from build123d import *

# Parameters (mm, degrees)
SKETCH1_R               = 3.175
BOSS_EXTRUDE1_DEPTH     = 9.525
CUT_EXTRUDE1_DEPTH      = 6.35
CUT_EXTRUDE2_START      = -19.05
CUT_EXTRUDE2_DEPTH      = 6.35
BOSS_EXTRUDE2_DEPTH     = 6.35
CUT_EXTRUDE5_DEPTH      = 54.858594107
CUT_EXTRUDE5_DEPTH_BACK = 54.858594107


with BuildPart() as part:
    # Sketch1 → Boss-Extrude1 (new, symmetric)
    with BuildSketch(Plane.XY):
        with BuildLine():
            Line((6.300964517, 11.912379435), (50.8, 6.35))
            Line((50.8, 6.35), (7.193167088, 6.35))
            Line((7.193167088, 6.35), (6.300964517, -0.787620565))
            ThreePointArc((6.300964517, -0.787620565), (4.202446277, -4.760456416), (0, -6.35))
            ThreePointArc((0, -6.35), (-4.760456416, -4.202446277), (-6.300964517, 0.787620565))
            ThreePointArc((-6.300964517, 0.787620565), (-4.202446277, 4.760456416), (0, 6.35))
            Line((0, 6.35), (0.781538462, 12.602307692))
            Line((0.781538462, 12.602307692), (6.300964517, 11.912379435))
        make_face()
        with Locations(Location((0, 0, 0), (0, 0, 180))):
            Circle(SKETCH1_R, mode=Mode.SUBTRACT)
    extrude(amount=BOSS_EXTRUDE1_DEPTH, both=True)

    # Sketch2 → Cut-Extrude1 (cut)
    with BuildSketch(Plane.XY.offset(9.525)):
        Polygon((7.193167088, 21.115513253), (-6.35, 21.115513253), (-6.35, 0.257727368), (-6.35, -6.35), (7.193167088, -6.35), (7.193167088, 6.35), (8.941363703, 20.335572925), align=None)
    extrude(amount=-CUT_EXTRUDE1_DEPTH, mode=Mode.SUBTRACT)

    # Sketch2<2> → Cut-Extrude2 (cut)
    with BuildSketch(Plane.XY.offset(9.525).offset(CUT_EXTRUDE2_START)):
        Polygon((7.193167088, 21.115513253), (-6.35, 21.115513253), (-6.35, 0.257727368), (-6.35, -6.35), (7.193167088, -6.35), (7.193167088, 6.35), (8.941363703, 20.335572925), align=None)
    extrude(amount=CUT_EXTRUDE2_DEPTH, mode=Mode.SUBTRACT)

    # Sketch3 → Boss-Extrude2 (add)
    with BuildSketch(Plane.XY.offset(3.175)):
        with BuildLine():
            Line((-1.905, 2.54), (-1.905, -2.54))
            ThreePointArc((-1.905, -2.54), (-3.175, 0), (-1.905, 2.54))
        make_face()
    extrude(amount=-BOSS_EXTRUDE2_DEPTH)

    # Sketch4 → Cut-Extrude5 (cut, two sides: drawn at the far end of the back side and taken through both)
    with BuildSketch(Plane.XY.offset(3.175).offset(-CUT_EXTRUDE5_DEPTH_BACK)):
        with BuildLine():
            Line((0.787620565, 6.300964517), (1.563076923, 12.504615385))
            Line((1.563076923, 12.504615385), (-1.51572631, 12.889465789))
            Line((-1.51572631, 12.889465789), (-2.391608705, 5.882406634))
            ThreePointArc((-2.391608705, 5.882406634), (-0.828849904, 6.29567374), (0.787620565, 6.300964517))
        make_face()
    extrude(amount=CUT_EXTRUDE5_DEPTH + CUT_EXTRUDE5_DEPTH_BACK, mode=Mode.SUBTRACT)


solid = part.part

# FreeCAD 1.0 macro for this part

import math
import FreeCAD as App
import Part
import Sketcher
Q = App.Units.Quantity


def add_polygon(sketch, points):
    """Adds a closed chain of lines whose ends are joined by coincident constraints."""
    first, n = sketch.GeometryCount, len(points)
    for a, b in zip(points, points[1:] + points[:1]):
        sketch.addGeometry(Part.LineSegment(App.Vector(*a, 0), App.Vector(*b, 0)), False)
    for i in range(n):
        sketch.addConstraint(Sketcher.Constraint("Coincident", first + i, 2, first + (i + 1) % n, 1))

doc = App.newDocument("Part")
params = doc.addObject("Spreadsheet::Sheet", "Params")
for row, (alias, value) in enumerate([
    ("sketch1_diameter", "0.25 in"),
    ("sketch1_radius", "0.25 in"),
    ("pad1_length", "0.75 in"),
    ("sketch2_height", "0.5 in"),
    ("pocket1_length", "0.25 in"),
    ("sketch3_height", "0.5 in"),
    ("pocket2_length", "0.25 in"),
    ("sketch4_height", "0.2 in"),
    ("sketch4_radius", "0.125 in"),
    ("pad2_length", "0.25 in"),
    ("sketch5_radius", "0.25 in"),
], start=1):
    params.set(f"A{row}", alias)
    params.set(f"B{row}", "=" + value)
    params.setAlias(f"B{row}", alias)

body = doc.addObject("PartDesign::Body", "Body")

# Sketch on XY plane
sketch1 = body.newObject("Sketcher::SketchObject", "Sketch")
sketch1.AttachmentSupport = (doc.getObject("XY_Plane"), [""])
sketch1.MapMode = "FlatFace"
sketch1.addGeometry(Part.LineSegment(App.Vector(50.8, 6.35, 0), App.Vector(6.300965, 11.912379, 0)), False)
sketch1.addGeometry(Part.LineSegment(App.Vector(6.300965, 11.912379, 0), App.Vector(0.781538, 12.602308, 0)), False)
sketch1.addGeometry(Part.LineSegment(App.Vector(0.781538, 12.602308, 0), App.Vector(0, 6.35, 0)), False)
sketch1.addGeometry(Part.ArcOfCircle(Part.Circle(App.Vector(0, 0, 0), App.Vector(0, 0, 1), 6.35), math.radians(90), math.radians(172.874984)), False)
sketch1.addGeometry(Part.ArcOfCircle(Part.Circle(App.Vector(0, 0, 0), App.Vector(0, 0, 1), 6.35), math.radians(172.874984), math.radians(270)), False)
sketch1.addGeometry(Part.ArcOfCircle(Part.Circle(App.Vector(0, 0, 0), App.Vector(0, 0, 1), 6.35), math.radians(-90), math.radians(-7.125016)), False)
sketch1.addGeometry(Part.LineSegment(App.Vector(6.300965, -0.787621, 0), App.Vector(7.193167, 6.35, 0)), False)
sketch1.addGeometry(Part.LineSegment(App.Vector(7.193167, 6.35, 0), App.Vector(50.8, 6.35, 0)), False)
sketch1.addGeometry(Part.Circle(App.Vector(0, 0, 0), App.Vector(0, 0, 1), 3.175), False)
sketch1.addConstraint(Sketcher.Constraint("Coincident", 0, 2, 1, 1))
sketch1.addConstraint(Sketcher.Constraint("Coincident", 1, 2, 2, 1))
sketch1.addConstraint(Sketcher.Constraint("Coincident", 2, 2, 3, 1))
sketch1.addConstraint(Sketcher.Constraint("Tangent", 3, 2, 4, 1))
sketch1.addConstraint(Sketcher.Constraint("Tangent", 4, 2, 5, 1))
sketch1.addConstraint(Sketcher.Constraint("Tangent", 5, 2, 6, 1))
sketch1.addConstraint(Sketcher.Constraint("Coincident", 6, 2, 7, 1))
sketch1.addConstraint(Sketcher.Constraint("Coincident", 7, 2, 0, 1))
sketch1.addConstraint(Sketcher.Constraint("Horizontal", 7))
sketch1.addConstraint(Sketcher.Constraint("Coincident", 3, 3, -1, 1))
sketch1.addConstraint(Sketcher.Constraint("Coincident", 5, 3, -1, 1))
sketch1.addConstraint(Sketcher.Constraint("Coincident", 8, 3, -1, 1))
sketch1.addConstraint(Sketcher.Constraint("PointOnObject", 2, 2, -2))
sketch1.addConstraint(Sketcher.Constraint("PointOnObject", 4, 2, -2))
sketch1.addConstraint(Sketcher.Constraint("Parallel", 0, 1))
sketch1.addConstraint(Sketcher.Constraint("Perpendicular", 1, 2))
sketch1.addConstraint(Sketcher.Constraint("Parallel", 2, 6))
sketch1.addConstraint(Sketcher.Constraint("Horizontal", 2, 2, 6, 2))
sketch1.addConstraint(Sketcher.Constraint("Vertical", 0, 2, 5, 2))
sketch1.addConstraint(Sketcher.Constraint("Diameter", 8, Q("0.25 in")))
sketch1.addConstraint(Sketcher.Constraint("Radius", 3, Q("0.25 in")))
sketch1.addConstraint(Sketcher.Constraint("DistanceX", -1, 1, 7, 2, Q("2 in")))
sketch1.addConstraint(Sketcher.Constraint("Distance", 1, 5.562379))
sketch1.addConstraint(Sketcher.Constraint("DistanceY", -1, 1, 3, 2, 0.787621))
sketch1.setExpression("Constraints[19]", "Params.sketch1_diameter")
sketch1.setExpression("Constraints[20]", "Params.sketch1_radius")
pad1 = body.newObject("PartDesign::Pad", "Pad")
pad1.Profile = sketch1
pad1.setExpression("Length", "Params.pad1_length")
pad1.Midplane = True

# Sketch on XY plane
sketch2 = body.newObject("Sketcher::SketchObject", "Sketch001")
sketch2.AttachmentSupport = (doc.getObject("XY_Plane"), [""])
sketch2.MapMode = "FlatFace"
sketch2.AttachmentOffset = App.Placement(App.Vector(0, 0, 0.375 * 25.4), App.Rotation())
add_polygon(sketch2, [(7.193167, 21.115513), (-6.35, 21.115513), (-6.35, -6.35), (7.193167, -6.35), (7.193167, 6.35), (8.941364, 20.335573)])  # lines 0-5
sketch2.addConstraint(Sketcher.Constraint("Horizontal", 0))
sketch2.addConstraint(Sketcher.Constraint("Vertical", 1))
sketch2.addConstraint(Sketcher.Constraint("Horizontal", 2))
sketch2.addConstraint(Sketcher.Constraint("Vertical", 3))
sketch2.addConstraint(Sketcher.Constraint("Vertical", 3, 2, 5, 2))
sketch2.addConstraint(Sketcher.Constraint("DistanceY", 3, 1, 3, 2, Q("0.5 in")))
sketch2.addConstraint(Sketcher.Constraint("DistanceX", 0, 2, -1, 1, Q("0.25 in")))
sketch2.addConstraint(Sketcher.Constraint("DistanceY", 1, 2, -1, 1, Q("0.25 in")))
sketch2.addConstraint(Sketcher.Constraint("Distance", 4, 14.094412))
sketch2.addConstraint(Sketcher.Constraint("DistanceX", 0, 2, 0, 1, 13.543167))
sketch2.addConstraint(Sketcher.Constraint("DistanceY", 1, 2, 1, 1, 27.465513))
sketch2.addConstraint(Sketcher.Constraint("DistanceY", 4, 2, 0, 2, 0.77994))
sketch2.setExpression("Constraints[11]", "Params.sketch2_height")
pocket1 = body.newObject("PartDesign::Pocket", "Pocket")
pocket1.Profile = sketch2
pocket1.setExpression("Length", "Params.pocket1_length")

# Sketch on XY plane
sketch3 = body.newObject("Sketcher::SketchObject", "Sketch002")
sketch3.AttachmentSupport = (doc.getObject("XY_Plane"), [""])
sketch3.MapMode = "FlatFace"
sketch3.AttachmentOffset = App.Placement(App.Vector(0, 0, -0.375 * 25.4), App.Rotation())
add_polygon(sketch3, [(7.193167, 21.115513), (-6.35, 21.115513), (-6.35, -6.35), (7.193167, -6.35), (7.193167, 6.35), (8.941364, 20.335573)])  # lines 0-5
sketch3.addConstraint(Sketcher.Constraint("Horizontal", 0))
sketch3.addConstraint(Sketcher.Constraint("Vertical", 1))
sketch3.addConstraint(Sketcher.Constraint("Horizontal", 2))
sketch3.addConstraint(Sketcher.Constraint("Vertical", 3))
sketch3.addConstraint(Sketcher.Constraint("Vertical", 3, 2, 5, 2))
sketch3.addConstraint(Sketcher.Constraint("DistanceY", 3, 1, 3, 2, Q("0.5 in")))
sketch3.addConstraint(Sketcher.Constraint("DistanceX", 0, 2, -1, 1, Q("0.25 in")))
sketch3.addConstraint(Sketcher.Constraint("DistanceY", 1, 2, -1, 1, Q("0.25 in")))
sketch3.addConstraint(Sketcher.Constraint("Distance", 4, 14.094412))
sketch3.addConstraint(Sketcher.Constraint("DistanceX", 0, 2, 0, 1, 13.543167))
sketch3.addConstraint(Sketcher.Constraint("DistanceY", 1, 2, 1, 1, 27.465513))
sketch3.addConstraint(Sketcher.Constraint("DistanceY", 4, 2, 0, 2, 0.77994))
sketch3.setExpression("Constraints[11]", "Params.sketch3_height")
pocket2 = body.newObject("PartDesign::Pocket", "Pocket001")
pocket2.Profile = sketch3
pocket2.setExpression("Length", "Params.pocket2_length")
pocket2.Reversed = True

# Sketch on XY plane
sketch4 = body.newObject("Sketcher::SketchObject", "Sketch003")
sketch4.AttachmentSupport = (doc.getObject("XY_Plane"), [""])
sketch4.MapMode = "FlatFace"
sketch4.AttachmentOffset = App.Placement(App.Vector(0, 0, 0.125 * 25.4), App.Rotation())
sketch4.addGeometry(Part.LineSegment(App.Vector(-1.905, -2.54, 0), App.Vector(-1.905, 2.54, 0)), False)
sketch4.addGeometry(Part.ArcOfCircle(Part.Circle(App.Vector(0, 0, 0), App.Vector(0, 0, 1), 3.175), math.radians(126.869898), math.radians(233.130102)), False)
sketch4.addConstraint(Sketcher.Constraint("Coincident", 0, 1, 1, 2))
sketch4.addConstraint(Sketcher.Constraint("Coincident", 1, 1, 0, 2))
sketch4.addConstraint(Sketcher.Constraint("Vertical", 0))
sketch4.addConstraint(Sketcher.Constraint("Coincident", 1, 3, -1, 1))
sketch4.addConstraint(Sketcher.Constraint("DistanceY", 0, 1, 0, 2, Q("0.2 in")))
sketch4.addConstraint(Sketcher.Constraint("Radius", 1, Q("0.125 in")))
sketch4.setExpression("Constraints[4]", "Params.sketch4_height")
sketch4.setExpression("Constraints[5]", "Params.sketch4_radius")
pad2 = body.newObject("PartDesign::Pad", "Pad001")
pad2.Profile = sketch4
pad2.setExpression("Length", "Params.pad2_length")
pad2.Reversed = True

# Sketch on XY plane
sketch5 = body.newObject("Sketcher::SketchObject", "Sketch004")
sketch5.AttachmentSupport = (doc.getObject("XY_Plane"), [""])
sketch5.MapMode = "FlatFace"
sketch5.AttachmentOffset = App.Placement(App.Vector(0, 0, 0.125 * 25.4), App.Rotation())
sketch5.addGeometry(Part.LineSegment(App.Vector(0.787621, 6.300965, 0), App.Vector(1.563077, 12.504615, 0)), False)
sketch5.addGeometry(Part.LineSegment(App.Vector(1.563077, 12.504615, 0), App.Vector(-1.515726, 12.889466, 0)), False)
sketch5.addGeometry(Part.LineSegment(App.Vector(-1.515726, 12.889466, 0), App.Vector(-2.391609, 5.882407, 0)), False)
sketch5.addGeometry(Part.ArcOfCircle(Part.Circle(App.Vector(0, 0, 0), App.Vector(0, 0, 1), 6.35), math.radians(82.874984), math.radians(112.125173)), False)
sketch5.addConstraint(Sketcher.Constraint("Coincident", 0, 2, 1, 1))
sketch5.addConstraint(Sketcher.Constraint("Coincident", 1, 2, 2, 1))
sketch5.addConstraint(Sketcher.Constraint("Coincident", 2, 2, 3, 2))
sketch5.addConstraint(Sketcher.Constraint("Coincident", 3, 1, 0, 1))
sketch5.addConstraint(Sketcher.Constraint("Coincident", 3, 3, -1, 1))
sketch5.addConstraint(Sketcher.Constraint("Perpendicular", 0, 1))
sketch5.addConstraint(Sketcher.Constraint("Perpendicular", 1, 2))
sketch5.addConstraint(Sketcher.Constraint("Radius", 3, Q("0.25 in")))
sketch5.addConstraint(Sketcher.Constraint("DistanceY", 3, 1, 1, 2, 6.588501))
sketch5.addConstraint(Sketcher.Constraint("Distance", 0, 6.251929))
sketch5.addConstraint(Sketcher.Constraint("Distance", 2, 7.06159))
sketch5.addConstraint(Sketcher.Constraint("DistanceX", 2, 2, -1, 1, 2.391609))
sketch5.setExpression("Constraints[7]", "Params.sketch5_radius")
pocket3 = body.newObject("PartDesign::Pocket", "Pocket002")
pocket3.Profile = sketch5
pocket3.Type = "ThroughAll"
pocket3.Midplane = True

doc.recompute()
